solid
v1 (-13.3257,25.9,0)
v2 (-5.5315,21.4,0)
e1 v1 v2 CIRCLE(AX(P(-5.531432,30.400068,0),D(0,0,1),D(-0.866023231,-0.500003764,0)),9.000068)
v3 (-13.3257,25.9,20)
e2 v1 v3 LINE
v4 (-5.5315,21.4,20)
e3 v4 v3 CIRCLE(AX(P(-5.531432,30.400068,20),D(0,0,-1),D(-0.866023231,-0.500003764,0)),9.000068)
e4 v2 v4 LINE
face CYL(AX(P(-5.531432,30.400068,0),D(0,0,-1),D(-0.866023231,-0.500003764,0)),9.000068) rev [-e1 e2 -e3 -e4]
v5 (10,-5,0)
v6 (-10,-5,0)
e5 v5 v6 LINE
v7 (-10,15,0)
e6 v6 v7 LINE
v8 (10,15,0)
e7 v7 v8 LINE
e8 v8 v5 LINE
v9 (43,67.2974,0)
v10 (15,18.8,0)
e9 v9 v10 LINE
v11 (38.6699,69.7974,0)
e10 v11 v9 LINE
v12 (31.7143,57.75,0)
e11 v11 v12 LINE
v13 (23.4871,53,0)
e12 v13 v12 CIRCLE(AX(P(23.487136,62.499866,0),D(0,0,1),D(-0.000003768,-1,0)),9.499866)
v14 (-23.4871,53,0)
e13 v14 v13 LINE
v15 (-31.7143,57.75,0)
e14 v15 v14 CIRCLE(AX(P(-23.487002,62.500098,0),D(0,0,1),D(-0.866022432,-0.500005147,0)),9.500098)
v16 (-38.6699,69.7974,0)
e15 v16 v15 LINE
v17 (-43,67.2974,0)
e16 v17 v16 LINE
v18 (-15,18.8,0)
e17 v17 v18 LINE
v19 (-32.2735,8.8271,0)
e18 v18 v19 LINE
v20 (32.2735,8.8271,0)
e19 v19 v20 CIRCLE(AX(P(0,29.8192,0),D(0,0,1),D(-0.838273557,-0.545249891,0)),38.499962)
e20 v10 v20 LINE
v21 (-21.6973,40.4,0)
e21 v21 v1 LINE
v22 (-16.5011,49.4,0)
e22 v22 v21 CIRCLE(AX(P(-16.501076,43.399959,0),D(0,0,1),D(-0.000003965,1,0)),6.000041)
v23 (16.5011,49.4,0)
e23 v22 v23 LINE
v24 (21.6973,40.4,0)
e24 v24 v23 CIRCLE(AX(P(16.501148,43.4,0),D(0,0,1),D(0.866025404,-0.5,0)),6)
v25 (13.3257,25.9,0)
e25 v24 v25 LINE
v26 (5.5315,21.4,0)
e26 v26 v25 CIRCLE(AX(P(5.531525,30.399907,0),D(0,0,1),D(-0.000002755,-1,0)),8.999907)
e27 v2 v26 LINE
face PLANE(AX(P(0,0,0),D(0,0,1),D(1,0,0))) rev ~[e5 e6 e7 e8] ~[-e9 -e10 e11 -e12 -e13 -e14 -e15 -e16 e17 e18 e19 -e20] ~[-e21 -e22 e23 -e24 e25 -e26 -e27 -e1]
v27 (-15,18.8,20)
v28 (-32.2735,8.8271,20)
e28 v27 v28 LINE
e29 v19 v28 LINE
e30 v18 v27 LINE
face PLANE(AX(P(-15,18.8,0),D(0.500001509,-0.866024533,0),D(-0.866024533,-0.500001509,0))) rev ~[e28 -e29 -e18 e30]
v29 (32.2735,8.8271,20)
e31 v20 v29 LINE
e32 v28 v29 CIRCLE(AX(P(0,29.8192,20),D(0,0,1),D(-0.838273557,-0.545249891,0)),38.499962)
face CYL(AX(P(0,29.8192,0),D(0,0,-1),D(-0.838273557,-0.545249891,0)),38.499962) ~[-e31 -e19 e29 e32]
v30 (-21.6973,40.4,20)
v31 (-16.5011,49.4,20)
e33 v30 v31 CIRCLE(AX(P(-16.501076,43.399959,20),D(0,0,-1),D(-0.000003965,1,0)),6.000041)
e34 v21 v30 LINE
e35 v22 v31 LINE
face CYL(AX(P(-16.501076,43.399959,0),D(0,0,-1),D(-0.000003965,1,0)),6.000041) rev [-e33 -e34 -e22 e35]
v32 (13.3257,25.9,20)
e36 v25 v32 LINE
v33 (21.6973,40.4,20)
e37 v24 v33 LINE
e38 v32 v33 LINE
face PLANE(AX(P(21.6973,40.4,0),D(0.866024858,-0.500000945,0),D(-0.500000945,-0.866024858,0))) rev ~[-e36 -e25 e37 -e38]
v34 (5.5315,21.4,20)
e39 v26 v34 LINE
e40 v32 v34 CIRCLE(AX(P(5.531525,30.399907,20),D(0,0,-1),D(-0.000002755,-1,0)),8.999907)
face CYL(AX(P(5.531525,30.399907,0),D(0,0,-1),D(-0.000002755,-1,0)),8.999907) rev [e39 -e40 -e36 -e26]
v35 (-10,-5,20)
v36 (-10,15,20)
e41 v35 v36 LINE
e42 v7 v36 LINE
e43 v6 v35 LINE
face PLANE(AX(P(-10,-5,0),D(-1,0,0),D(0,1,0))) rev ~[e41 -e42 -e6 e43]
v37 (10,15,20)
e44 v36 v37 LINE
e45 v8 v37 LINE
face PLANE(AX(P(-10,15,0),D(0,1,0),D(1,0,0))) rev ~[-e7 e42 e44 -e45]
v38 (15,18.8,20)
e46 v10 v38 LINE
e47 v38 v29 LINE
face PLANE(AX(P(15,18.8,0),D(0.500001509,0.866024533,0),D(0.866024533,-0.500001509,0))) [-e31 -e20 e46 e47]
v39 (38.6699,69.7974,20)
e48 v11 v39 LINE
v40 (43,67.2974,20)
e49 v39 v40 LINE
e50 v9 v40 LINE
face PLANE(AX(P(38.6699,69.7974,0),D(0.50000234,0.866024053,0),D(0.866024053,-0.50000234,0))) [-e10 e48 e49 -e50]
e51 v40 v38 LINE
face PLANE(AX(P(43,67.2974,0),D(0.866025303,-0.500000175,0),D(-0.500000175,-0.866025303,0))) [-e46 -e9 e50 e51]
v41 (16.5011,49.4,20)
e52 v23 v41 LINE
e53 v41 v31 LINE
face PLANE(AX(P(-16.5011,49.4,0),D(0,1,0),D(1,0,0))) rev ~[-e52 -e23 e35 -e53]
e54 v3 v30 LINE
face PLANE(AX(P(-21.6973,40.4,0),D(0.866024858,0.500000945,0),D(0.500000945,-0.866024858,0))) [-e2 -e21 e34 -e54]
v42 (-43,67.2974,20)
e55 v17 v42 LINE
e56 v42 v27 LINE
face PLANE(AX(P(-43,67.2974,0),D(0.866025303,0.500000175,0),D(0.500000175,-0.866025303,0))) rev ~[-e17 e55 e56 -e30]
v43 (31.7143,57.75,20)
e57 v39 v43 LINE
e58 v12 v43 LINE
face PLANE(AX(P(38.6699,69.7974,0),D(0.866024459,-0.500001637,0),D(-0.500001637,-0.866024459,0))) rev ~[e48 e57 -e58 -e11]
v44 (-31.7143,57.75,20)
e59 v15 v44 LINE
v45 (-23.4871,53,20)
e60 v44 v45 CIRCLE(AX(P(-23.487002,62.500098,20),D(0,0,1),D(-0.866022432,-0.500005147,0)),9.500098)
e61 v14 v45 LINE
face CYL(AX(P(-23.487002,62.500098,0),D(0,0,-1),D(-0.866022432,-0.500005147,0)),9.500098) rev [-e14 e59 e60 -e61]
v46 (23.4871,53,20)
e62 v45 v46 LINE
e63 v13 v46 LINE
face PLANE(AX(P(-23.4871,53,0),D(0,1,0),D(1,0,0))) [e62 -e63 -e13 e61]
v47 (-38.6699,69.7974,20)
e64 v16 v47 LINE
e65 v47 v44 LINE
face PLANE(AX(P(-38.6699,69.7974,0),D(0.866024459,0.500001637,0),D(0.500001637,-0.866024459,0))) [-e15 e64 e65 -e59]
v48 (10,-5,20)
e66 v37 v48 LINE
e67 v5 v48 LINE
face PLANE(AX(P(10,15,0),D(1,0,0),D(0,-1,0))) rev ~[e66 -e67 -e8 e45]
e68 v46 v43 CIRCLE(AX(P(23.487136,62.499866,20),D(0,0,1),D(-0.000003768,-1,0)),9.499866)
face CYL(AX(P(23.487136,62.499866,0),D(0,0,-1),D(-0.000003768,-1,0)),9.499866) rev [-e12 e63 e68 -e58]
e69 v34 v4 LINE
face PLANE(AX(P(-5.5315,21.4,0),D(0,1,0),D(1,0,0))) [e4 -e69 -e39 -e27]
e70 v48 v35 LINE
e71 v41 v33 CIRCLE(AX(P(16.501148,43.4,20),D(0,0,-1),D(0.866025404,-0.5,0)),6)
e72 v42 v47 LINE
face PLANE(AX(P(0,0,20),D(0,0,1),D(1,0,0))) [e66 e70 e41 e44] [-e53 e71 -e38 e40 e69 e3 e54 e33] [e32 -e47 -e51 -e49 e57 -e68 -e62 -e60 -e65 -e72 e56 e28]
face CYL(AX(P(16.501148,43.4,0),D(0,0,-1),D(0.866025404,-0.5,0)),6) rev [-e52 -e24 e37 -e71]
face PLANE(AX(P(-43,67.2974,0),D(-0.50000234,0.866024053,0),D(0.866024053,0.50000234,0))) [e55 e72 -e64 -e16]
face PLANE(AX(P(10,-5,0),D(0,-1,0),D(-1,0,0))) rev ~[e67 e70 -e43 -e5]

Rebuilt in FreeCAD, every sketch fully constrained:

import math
import FreeCAD as App
import Part
import Sketcher
Q = App.Units.Quantity


def add_polygon(sketch, points):
    """Adds a closed chain of lines whose ends are joined by coincident constraints."""
    first, n = sketch.GeometryCount, len(points)
    for a, b in zip(points, points[1:] + points[:1]):
        sketch.addGeometry(Part.LineSegment(App.Vector(*a, 0), App.Vector(*b, 0)), False)
    for i in range(n):
        sketch.addConstraint(Sketcher.Constraint("Coincident", first + i, 2, first + (i + 1) % n, 1))

doc = App.newDocument("Part")
params = doc.addObject("Spreadsheet::Sheet", "Params")
for row, (alias, value) in enumerate([
    ("sketch1_radius", "38.5 mm"),
    ("sketch1_radius2", "9.5 mm"),
    ("sketch1_width", "20 mm"),
    ("sketch1_length", "5 mm"),
    ("sketch1_length2", "56 mm"),
    ("pad1_length", "20 mm"),
    ("sketch2_radius", "9 mm"),
    ("sketch2_radius2", "6 mm"),
], start=1):
    params.set(f"A{row}", alias)
    params.set(f"B{row}", "=" + value)
    params.setAlias(f"B{row}", alias)

body = doc.addObject("PartDesign::Body", "Body")

# Sketch on XY plane
sketch1 = body.newObject("Sketcher::SketchObject", "Sketch")
sketch1.AttachmentSupport = (doc.getObject("XY_Plane"), [""])
sketch1.MapMode = "FlatFace"
sketch1.addGeometry(Part.LineSegment(App.Vector(-38.7, 69.8, 0), App.Vector(-43, 67.3, 0)), False)  # 0
sketch1.addGeometry(Part.LineSegment(App.Vector(-43, 67.3, 0), App.Vector(-15, 18.8, 0)), False)  # 1
sketch1.addGeometry(Part.LineSegment(App.Vector(-15, 18.8, 0), App.Vector(-32.3, 8.8, 0)), False)  # 2
sketch1.addGeometry(Part.ArcOfCircle(Part.Circle(App.Vector(0, 29.8, 0), App.Vector(0, 0, 1), 38.5), math.radians(-147), math.radians(-33)), False)  # 3
sketch1.addGeometry(Part.LineSegment(App.Vector(32.3, 8.8, 0), App.Vector(15, 18.8, 0)), False)  # 4
sketch1.addGeometry(Part.LineSegment(App.Vector(15, 18.8, 0), App.Vector(43, 67.3, 0)), False)  # 5
sketch1.addGeometry(Part.LineSegment(App.Vector(43, 67.3, 0), App.Vector(38.7, 69.8, 0)), False)  # 6
sketch1.addGeometry(Part.LineSegment(App.Vector(38.7, 69.8, 0), App.Vector(31.7, 57.8, 0)), False)  # 7
sketch1.addGeometry(Part.ArcOfCircle(Part.Circle(App.Vector(23.5, 62.5, 0), App.Vector(0, 0, 1), 9.5), math.radians(-90), math.radians(-30)), False)  # 8
sketch1.addGeometry(Part.LineSegment(App.Vector(23.5, 53, 0), App.Vector(-23.5, 53, 0)), False)  # 9
sketch1.addGeometry(Part.ArcOfCircle(Part.Circle(App.Vector(-23.5, 62.5, 0), App.Vector(0, 0, 1), 9.5), math.radians(-150), math.radians(-90)), False)  # 10
sketch1.addGeometry(Part.LineSegment(App.Vector(-31.7, 57.8, 0), App.Vector(-38.7, 69.8, 0)), False)  # 11
add_polygon(sketch1, [(-10, -5), (-10, 15), (10, 15), (10, -5)])  # lines 12-15
sketch1.addConstraint(Sketcher.Constraint("Coincident", 0, 2, 1, 1))
sketch1.addConstraint(Sketcher.Constraint("Coincident", 1, 2, 2, 1))
sketch1.addConstraint(Sketcher.Constraint("Coincident", 2, 2, 3, 1))
sketch1.addConstraint(Sketcher.Constraint("Coincident", 3, 2, 4, 1))
sketch1.addConstraint(Sketcher.Constraint("Coincident", 4, 2, 5, 1))
sketch1.addConstraint(Sketcher.Constraint("Coincident", 5, 2, 6, 1))
sketch1.addConstraint(Sketcher.Constraint("Coincident", 6, 2, 7, 1))
sketch1.addConstraint(Sketcher.Constraint("Tangent", 7, 2, 8, 2))
sketch1.addConstraint(Sketcher.Constraint("Tangent", 8, 1, 9, 1))
sketch1.addConstraint(Sketcher.Constraint("Tangent", 9, 2, 10, 2))
sketch1.addConstraint(Sketcher.Constraint("Tangent", 10, 1, 11, 1))
sketch1.addConstraint(Sketcher.Constraint("Coincident", 11, 2, 0, 1))
sketch1.addConstraint(Sketcher.Constraint("Horizontal", 9))
sketch1.addConstraint(Sketcher.Constraint("Vertical", 12))
sketch1.addConstraint(Sketcher.Constraint("Horizontal", 13))
sketch1.addConstraint(Sketcher.Constraint("Vertical", 14))
sketch1.addConstraint(Sketcher.Constraint("Horizontal", 15))
sketch1.addConstraint(Sketcher.Constraint("Equal", 8, 10))
sketch1.addConstraint(Sketcher.Constraint("Symmetric", 2, 2, 3, 2, -2))
sketch1.addConstraint(Sketcher.Constraint("Symmetric", 1, 2, 4, 2, -2))
sketch1.addConstraint(Sketcher.Constraint("Symmetric", 0, 2, 5, 2, -2))
sketch1.addConstraint(Sketcher.Constraint("Symmetric", 7, 2, 10, 1, -2))
sketch1.addConstraint(Sketcher.Constraint("Perpendicular", 0, 1))
sketch1.addConstraint(Sketcher.Constraint("Perpendicular", 1, 2))
sketch1.addConstraint(Sketcher.Constraint("Perpendicular", 5, 6))
sketch1.addConstraint(Sketcher.Constraint("Perpendicular", 6, 7))
sketch1.addConstraint(Sketcher.Constraint("Equal", 15, 12))
sketch1.addConstraint(Sketcher.Constraint("Radius", 3, Q("38.5 mm")))
sketch1.addConstraint(Sketcher.Constraint("Radius", 8, Q("9.5 mm")))
sketch1.addConstraint(Sketcher.Constraint("DistanceX", 13, 1, 13, 2, Q("20 mm")))
sketch1.addConstraint(Sketcher.Constraint("Distance", 0, Q("5 mm")))
sketch1.addConstraint(Sketcher.Constraint("Distance", 1, Q("56 mm")))
sketch1.addConstraint(Sketcher.Constraint("DistanceX", 1, 2, -1, 1, Q("15 mm")))
sketch1.addConstraint(Sketcher.Constraint("DistanceX", 12, 2, -1, 1, Q("10 mm")))
sketch1.addConstraint(Sketcher.Constraint("DistanceY", -1, 1, 12, 2, Q("15 mm")))
sketch1.addConstraint(Sketcher.Constraint("DistanceX", 0, 2, 1, 2, Q("28 mm")))
sketch1.addConstraint(Sketcher.Constraint("DistanceY", -1, 1, 8, 1, Q("53 mm")))
sketch1.addConstraint(Sketcher.Constraint("DistanceY", -1, 1, 1, 2, Q("18.8 mm")))
sketch1.addConstraint(Sketcher.Constraint("DistanceY", -1, 1, 2, 2, Q("8.827 mm")))
sketch1.setExpression("Constraints[31]", "Params.sketch1_radius")
sketch1.setExpression("Constraints[32]", "Params.sketch1_radius2")
sketch1.setExpression("Constraints[33]", "Params.sketch1_width")
sketch1.setExpression("Constraints[34]", "Params.sketch1_length")
sketch1.setExpression("Constraints[35]", "Params.sketch1_length2")
pad1 = body.newObject("PartDesign::Pad", "Pad")
pad1.Profile = sketch1
pad1.setExpression("Length", "Params.pad1_length")

# Sketch on XY plane
sketch2 = body.newObject("Sketcher::SketchObject", "Sketch001")
sketch2.AttachmentSupport = (doc.getObject("XY_Plane"), [""])
sketch2.MapMode = "FlatFace"
sketch2.addGeometry(Part.ArcOfCircle(Part.Circle(App.Vector(-6, 30, 0), App.Vector(0, 0, 1), 9), math.radians(-150), math.radians(-90)), False)
sketch2.addGeometry(Part.LineSegment(App.Vector(-6, 21, 0), App.Vector(6, 21, 0)), False)
sketch2.addGeometry(Part.ArcOfCircle(Part.Circle(App.Vector(6, 30, 0), App.Vector(0, 0, 1), 9), math.radians(-90), math.radians(-30)), False)
sketch2.addGeometry(Part.LineSegment(App.Vector(13, 26, 0), App.Vector(22, 40, 0)), False)
sketch2.addGeometry(Part.ArcOfCircle(Part.Circle(App.Vector(17, 43, 0), App.Vector(0, 0, 1), 6), math.radians(-30), math.radians(90)), False)
sketch2.addGeometry(Part.LineSegment(App.Vector(17, 49, 0), App.Vector(-17, 49, 0)), False)
sketch2.addGeometry(Part.ArcOfCircle(Part.Circle(App.Vector(-17, 43, 0), App.Vector(0, 0, 1), 6), math.radians(90), math.radians(210)), False)
sketch2.addGeometry(Part.LineSegment(App.Vector(-22, 40, 0), App.Vector(-13, 26, 0)), False)
sketch2.addConstraint(Sketcher.Constraint("Tangent", 0, 2, 1, 1))
sketch2.addConstraint(Sketcher.Constraint("Tangent", 1, 2, 2, 1))
sketch2.addConstraint(Sketcher.Constraint("Tangent", 2, 2, 3, 1))
sketch2.addConstraint(Sketcher.Constraint("Tangent", 3, 2, 4, 1))
sketch2.addConstraint(Sketcher.Constraint("Tangent", 4, 2, 5, 1))
sketch2.addConstraint(Sketcher.Constraint("Tangent", 5, 2, 6, 1))
sketch2.addConstraint(Sketcher.Constraint("Tangent", 6, 2, 7, 1))
sketch2.addConstraint(Sketcher.Constraint("Tangent", 7, 2, 0, 1))
sketch2.addConstraint(Sketcher.Constraint("Horizontal", 1))
sketch2.addConstraint(Sketcher.Constraint("Horizontal", 5))
sketch2.addConstraint(Sketcher.Constraint("Equal", 0, 2))
sketch2.addConstraint(Sketcher.Constraint("Equal", 4, 6))
sketch2.addConstraint(Sketcher.Constraint("Symmetric", 3, 2, 6, 2, -2))
sketch2.addConstraint(Sketcher.Constraint("Radius", 0, Q("9 mm")))
sketch2.addConstraint(Sketcher.Constraint("Radius", 4, Q("6 mm")))
sketch2.addConstraint(Sketcher.Constraint("DistanceY", 2, 3, 3, 2, Q("10 mm")))
sketch2.addConstraint(Sketcher.Constraint("DistanceY", 3, 2, 4, 2, Q("9 mm")))
sketch2.addConstraint(Sketcher.Constraint("DistanceY", -1, 1, 0, 3, Q("30.4 mm")))
sketch2.addConstraint(Sketcher.Constraint("DistanceX", 1, 1, 1, 2, Q("11.063 mm")))
sketch2.setExpression("Constraints[13]", "Params.sketch2_radius")
sketch2.setExpression("Constraints[14]", "Params.sketch2_radius2")
pocket1 = body.newObject("PartDesign::Pocket", "Pocket")
pocket1.Profile = sketch2
pocket1.Type = "ThroughAll"
pocket1.Reversed = True

doc.recompute()
